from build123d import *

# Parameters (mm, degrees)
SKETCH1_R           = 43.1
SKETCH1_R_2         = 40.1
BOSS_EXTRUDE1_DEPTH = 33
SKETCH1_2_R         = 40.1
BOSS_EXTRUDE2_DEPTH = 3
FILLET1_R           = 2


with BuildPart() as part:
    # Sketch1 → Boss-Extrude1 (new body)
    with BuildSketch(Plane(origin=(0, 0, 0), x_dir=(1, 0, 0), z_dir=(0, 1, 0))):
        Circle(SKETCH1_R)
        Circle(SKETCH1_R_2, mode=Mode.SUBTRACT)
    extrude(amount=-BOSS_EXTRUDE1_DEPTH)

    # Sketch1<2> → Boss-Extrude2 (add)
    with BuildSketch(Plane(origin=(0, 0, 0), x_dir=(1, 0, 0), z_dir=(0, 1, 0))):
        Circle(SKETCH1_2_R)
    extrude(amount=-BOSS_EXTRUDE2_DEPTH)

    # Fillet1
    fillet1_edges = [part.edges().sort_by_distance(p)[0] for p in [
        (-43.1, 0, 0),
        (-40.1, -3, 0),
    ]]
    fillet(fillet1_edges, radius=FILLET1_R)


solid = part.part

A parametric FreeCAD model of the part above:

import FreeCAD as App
import Part
import Sketcher
Q = App.Units.Quantity


def edges_at(feature, points):
    """Names of the edges that pass closest to the given points."""
    edges = feature.Shape.Edges
    near = lambda p: min(range(len(edges)), key=lambda i: edges[i].distToShape(Part.Vertex(*p))[0])
    return sorted({f"Edge{near(p) + 1}" for p in points})

doc = App.newDocument("Part")
body = doc.addObject("PartDesign::Body", "Body")

sketch1 = body.newObject("Sketcher::SketchObject", "Sketch")
sketch1.AttachmentSupport = (doc.getObject("XZ_Plane"), [""])
sketch1.MapMode = "FlatFace"
sketch1.addGeometry(Part.Circle(App.Vector(0, 0, 0), App.Vector(0, 0, 1), 43), False)
sketch1.addGeometry(Part.Circle(App.Vector(0, 0, 0), App.Vector(0, 0, 1), 40), False)
sketch1.addConstraint(Sketcher.Constraint("Coincident", 0, 3, -1, 1))
sketch1.addConstraint(Sketcher.Constraint("Coincident", 1, 3, -1, 1))
sketch1.addConstraint(Sketcher.Constraint("Diameter", 0, Q("86.2 mm")))
sketch1.addConstraint(Sketcher.Constraint("Diameter", 1, Q("80.2 mm")))
pad1 = body.newObject("PartDesign::Pad", "Pad")
pad1.Profile = sketch1
pad1.Length = 33

sketch2 = body.newObject("Sketcher::SketchObject", "Sketch001")
sketch2.AttachmentSupport = (doc.getObject("XZ_Plane"), [""])
sketch2.MapMode = "FlatFace"
sketch2.addGeometry(Part.Circle(App.Vector(0, 0, 0), App.Vector(0, 0, 1), 40), False)
sketch2.addConstraint(Sketcher.Constraint("Coincident", 0, 3, -1, 1))
sketch2.addConstraint(Sketcher.Constraint("Diameter", 0, Q("80.2 mm")))
pad2 = body.newObject("PartDesign::Pad", "Pad001")
pad2.Profile = sketch2
pad2.Length = 3
doc.recompute()

fillet = body.newObject("PartDesign::Fillet", "Fillet")
fillet.Base = (pad2, edges_at(pad2, [(-43.1, 0, 0), (-40.1, -3, 0)]))
fillet.Radius = 2

doc.recompute()
